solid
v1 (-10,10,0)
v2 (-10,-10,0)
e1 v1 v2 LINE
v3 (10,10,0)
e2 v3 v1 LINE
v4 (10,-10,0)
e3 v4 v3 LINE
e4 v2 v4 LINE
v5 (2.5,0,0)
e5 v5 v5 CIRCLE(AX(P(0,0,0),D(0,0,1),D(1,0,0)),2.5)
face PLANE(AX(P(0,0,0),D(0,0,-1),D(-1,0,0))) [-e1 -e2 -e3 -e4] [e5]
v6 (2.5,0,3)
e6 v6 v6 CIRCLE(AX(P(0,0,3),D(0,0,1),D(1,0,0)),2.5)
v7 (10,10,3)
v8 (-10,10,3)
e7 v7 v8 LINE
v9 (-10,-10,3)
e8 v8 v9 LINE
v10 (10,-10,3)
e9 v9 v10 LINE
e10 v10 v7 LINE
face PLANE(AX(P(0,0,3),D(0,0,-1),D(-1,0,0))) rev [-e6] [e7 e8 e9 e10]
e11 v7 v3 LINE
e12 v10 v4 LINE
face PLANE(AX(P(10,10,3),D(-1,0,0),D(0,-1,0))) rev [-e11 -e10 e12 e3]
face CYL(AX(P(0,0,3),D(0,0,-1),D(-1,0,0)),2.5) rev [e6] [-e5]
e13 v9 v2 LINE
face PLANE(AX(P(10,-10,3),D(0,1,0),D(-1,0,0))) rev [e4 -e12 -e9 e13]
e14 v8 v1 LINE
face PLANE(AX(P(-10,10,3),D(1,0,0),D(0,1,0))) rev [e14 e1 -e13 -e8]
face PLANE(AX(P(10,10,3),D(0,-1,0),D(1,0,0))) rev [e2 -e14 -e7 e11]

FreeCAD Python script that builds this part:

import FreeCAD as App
import Part
import Sketcher

V = App.Vector


def add_polygon(sketch, points):
    """Adds a closed chain of lines whose ends are joined by coincident constraints."""
    first, n = sketch.GeometryCount, len(points)
    for a, b in zip(points, points[1:] + points[:1]):
        sketch.addGeometry(Part.LineSegment(App.Vector(*a, 0), App.Vector(*b, 0)), False)
    for i in range(n):
        sketch.addConstraint(Sketcher.Constraint("Coincident", first + i, 2, first + (i + 1) % n, 1))

doc = App.newDocument("Part")
params = doc.addObject("Spreadsheet::Sheet", "Params")
for row, (alias, value) in enumerate([
    ("sketch1_diameter", "5 mm"),
    ("sketch1_width", "20 mm"),
    ("pad1_length", "3 mm"),
], start=1):
    params.set(f"A{row}", alias)
    params.set(f"B{row}", "=" + value)
    params.setAlias(f"B{row}", alias)

body = doc.addObject("PartDesign::Body", "Body")

# Sketch on XY plane
sketch1 = body.newObject("Sketcher::SketchObject", "Sketch")
sketch1.AttachmentSupport = (doc.getObject("XY_Plane"), [""])
sketch1.MapMode = "FlatFace"
add_polygon(sketch1, [(-10, 10), (-10, -10), (10, -10), (10, 10)])  # lines 0-3
sketch1.addGeometry(Part.Circle(V(0, 0, 0), V(0, 0, 1), 2.5), False)  # 4
sketch1.addConstraint([
    Sketcher.Constraint("Vertical", 0),
    Sketcher.Constraint("Horizontal", 1),
    Sketcher.Constraint("Vertical", 2),
    Sketcher.Constraint("Horizontal", 3),
    Sketcher.Constraint("Coincident", 4, 3, -1, 1),
    Sketcher.Constraint("Symmetric", 0, 2, 2, 2, -1, 1),
    Sketcher.Constraint("Equal", 3, 0),
    Sketcher.Constraint("Diameter", 4, 5.0),
    Sketcher.Constraint("DistanceX", 1, 1, 1, 2, 20.0),
])
sketch1.setExpression("Constraints[11]", "Params.sketch1_diameter")
sketch1.setExpression("Constraints[12]", "Params.sketch1_width")
pad1 = body.newObject("PartDesign::Pad", "Pad")
pad1.Profile = sketch1
pad1.setExpression("Length", "Params.pad1_length")

doc.recompute()
